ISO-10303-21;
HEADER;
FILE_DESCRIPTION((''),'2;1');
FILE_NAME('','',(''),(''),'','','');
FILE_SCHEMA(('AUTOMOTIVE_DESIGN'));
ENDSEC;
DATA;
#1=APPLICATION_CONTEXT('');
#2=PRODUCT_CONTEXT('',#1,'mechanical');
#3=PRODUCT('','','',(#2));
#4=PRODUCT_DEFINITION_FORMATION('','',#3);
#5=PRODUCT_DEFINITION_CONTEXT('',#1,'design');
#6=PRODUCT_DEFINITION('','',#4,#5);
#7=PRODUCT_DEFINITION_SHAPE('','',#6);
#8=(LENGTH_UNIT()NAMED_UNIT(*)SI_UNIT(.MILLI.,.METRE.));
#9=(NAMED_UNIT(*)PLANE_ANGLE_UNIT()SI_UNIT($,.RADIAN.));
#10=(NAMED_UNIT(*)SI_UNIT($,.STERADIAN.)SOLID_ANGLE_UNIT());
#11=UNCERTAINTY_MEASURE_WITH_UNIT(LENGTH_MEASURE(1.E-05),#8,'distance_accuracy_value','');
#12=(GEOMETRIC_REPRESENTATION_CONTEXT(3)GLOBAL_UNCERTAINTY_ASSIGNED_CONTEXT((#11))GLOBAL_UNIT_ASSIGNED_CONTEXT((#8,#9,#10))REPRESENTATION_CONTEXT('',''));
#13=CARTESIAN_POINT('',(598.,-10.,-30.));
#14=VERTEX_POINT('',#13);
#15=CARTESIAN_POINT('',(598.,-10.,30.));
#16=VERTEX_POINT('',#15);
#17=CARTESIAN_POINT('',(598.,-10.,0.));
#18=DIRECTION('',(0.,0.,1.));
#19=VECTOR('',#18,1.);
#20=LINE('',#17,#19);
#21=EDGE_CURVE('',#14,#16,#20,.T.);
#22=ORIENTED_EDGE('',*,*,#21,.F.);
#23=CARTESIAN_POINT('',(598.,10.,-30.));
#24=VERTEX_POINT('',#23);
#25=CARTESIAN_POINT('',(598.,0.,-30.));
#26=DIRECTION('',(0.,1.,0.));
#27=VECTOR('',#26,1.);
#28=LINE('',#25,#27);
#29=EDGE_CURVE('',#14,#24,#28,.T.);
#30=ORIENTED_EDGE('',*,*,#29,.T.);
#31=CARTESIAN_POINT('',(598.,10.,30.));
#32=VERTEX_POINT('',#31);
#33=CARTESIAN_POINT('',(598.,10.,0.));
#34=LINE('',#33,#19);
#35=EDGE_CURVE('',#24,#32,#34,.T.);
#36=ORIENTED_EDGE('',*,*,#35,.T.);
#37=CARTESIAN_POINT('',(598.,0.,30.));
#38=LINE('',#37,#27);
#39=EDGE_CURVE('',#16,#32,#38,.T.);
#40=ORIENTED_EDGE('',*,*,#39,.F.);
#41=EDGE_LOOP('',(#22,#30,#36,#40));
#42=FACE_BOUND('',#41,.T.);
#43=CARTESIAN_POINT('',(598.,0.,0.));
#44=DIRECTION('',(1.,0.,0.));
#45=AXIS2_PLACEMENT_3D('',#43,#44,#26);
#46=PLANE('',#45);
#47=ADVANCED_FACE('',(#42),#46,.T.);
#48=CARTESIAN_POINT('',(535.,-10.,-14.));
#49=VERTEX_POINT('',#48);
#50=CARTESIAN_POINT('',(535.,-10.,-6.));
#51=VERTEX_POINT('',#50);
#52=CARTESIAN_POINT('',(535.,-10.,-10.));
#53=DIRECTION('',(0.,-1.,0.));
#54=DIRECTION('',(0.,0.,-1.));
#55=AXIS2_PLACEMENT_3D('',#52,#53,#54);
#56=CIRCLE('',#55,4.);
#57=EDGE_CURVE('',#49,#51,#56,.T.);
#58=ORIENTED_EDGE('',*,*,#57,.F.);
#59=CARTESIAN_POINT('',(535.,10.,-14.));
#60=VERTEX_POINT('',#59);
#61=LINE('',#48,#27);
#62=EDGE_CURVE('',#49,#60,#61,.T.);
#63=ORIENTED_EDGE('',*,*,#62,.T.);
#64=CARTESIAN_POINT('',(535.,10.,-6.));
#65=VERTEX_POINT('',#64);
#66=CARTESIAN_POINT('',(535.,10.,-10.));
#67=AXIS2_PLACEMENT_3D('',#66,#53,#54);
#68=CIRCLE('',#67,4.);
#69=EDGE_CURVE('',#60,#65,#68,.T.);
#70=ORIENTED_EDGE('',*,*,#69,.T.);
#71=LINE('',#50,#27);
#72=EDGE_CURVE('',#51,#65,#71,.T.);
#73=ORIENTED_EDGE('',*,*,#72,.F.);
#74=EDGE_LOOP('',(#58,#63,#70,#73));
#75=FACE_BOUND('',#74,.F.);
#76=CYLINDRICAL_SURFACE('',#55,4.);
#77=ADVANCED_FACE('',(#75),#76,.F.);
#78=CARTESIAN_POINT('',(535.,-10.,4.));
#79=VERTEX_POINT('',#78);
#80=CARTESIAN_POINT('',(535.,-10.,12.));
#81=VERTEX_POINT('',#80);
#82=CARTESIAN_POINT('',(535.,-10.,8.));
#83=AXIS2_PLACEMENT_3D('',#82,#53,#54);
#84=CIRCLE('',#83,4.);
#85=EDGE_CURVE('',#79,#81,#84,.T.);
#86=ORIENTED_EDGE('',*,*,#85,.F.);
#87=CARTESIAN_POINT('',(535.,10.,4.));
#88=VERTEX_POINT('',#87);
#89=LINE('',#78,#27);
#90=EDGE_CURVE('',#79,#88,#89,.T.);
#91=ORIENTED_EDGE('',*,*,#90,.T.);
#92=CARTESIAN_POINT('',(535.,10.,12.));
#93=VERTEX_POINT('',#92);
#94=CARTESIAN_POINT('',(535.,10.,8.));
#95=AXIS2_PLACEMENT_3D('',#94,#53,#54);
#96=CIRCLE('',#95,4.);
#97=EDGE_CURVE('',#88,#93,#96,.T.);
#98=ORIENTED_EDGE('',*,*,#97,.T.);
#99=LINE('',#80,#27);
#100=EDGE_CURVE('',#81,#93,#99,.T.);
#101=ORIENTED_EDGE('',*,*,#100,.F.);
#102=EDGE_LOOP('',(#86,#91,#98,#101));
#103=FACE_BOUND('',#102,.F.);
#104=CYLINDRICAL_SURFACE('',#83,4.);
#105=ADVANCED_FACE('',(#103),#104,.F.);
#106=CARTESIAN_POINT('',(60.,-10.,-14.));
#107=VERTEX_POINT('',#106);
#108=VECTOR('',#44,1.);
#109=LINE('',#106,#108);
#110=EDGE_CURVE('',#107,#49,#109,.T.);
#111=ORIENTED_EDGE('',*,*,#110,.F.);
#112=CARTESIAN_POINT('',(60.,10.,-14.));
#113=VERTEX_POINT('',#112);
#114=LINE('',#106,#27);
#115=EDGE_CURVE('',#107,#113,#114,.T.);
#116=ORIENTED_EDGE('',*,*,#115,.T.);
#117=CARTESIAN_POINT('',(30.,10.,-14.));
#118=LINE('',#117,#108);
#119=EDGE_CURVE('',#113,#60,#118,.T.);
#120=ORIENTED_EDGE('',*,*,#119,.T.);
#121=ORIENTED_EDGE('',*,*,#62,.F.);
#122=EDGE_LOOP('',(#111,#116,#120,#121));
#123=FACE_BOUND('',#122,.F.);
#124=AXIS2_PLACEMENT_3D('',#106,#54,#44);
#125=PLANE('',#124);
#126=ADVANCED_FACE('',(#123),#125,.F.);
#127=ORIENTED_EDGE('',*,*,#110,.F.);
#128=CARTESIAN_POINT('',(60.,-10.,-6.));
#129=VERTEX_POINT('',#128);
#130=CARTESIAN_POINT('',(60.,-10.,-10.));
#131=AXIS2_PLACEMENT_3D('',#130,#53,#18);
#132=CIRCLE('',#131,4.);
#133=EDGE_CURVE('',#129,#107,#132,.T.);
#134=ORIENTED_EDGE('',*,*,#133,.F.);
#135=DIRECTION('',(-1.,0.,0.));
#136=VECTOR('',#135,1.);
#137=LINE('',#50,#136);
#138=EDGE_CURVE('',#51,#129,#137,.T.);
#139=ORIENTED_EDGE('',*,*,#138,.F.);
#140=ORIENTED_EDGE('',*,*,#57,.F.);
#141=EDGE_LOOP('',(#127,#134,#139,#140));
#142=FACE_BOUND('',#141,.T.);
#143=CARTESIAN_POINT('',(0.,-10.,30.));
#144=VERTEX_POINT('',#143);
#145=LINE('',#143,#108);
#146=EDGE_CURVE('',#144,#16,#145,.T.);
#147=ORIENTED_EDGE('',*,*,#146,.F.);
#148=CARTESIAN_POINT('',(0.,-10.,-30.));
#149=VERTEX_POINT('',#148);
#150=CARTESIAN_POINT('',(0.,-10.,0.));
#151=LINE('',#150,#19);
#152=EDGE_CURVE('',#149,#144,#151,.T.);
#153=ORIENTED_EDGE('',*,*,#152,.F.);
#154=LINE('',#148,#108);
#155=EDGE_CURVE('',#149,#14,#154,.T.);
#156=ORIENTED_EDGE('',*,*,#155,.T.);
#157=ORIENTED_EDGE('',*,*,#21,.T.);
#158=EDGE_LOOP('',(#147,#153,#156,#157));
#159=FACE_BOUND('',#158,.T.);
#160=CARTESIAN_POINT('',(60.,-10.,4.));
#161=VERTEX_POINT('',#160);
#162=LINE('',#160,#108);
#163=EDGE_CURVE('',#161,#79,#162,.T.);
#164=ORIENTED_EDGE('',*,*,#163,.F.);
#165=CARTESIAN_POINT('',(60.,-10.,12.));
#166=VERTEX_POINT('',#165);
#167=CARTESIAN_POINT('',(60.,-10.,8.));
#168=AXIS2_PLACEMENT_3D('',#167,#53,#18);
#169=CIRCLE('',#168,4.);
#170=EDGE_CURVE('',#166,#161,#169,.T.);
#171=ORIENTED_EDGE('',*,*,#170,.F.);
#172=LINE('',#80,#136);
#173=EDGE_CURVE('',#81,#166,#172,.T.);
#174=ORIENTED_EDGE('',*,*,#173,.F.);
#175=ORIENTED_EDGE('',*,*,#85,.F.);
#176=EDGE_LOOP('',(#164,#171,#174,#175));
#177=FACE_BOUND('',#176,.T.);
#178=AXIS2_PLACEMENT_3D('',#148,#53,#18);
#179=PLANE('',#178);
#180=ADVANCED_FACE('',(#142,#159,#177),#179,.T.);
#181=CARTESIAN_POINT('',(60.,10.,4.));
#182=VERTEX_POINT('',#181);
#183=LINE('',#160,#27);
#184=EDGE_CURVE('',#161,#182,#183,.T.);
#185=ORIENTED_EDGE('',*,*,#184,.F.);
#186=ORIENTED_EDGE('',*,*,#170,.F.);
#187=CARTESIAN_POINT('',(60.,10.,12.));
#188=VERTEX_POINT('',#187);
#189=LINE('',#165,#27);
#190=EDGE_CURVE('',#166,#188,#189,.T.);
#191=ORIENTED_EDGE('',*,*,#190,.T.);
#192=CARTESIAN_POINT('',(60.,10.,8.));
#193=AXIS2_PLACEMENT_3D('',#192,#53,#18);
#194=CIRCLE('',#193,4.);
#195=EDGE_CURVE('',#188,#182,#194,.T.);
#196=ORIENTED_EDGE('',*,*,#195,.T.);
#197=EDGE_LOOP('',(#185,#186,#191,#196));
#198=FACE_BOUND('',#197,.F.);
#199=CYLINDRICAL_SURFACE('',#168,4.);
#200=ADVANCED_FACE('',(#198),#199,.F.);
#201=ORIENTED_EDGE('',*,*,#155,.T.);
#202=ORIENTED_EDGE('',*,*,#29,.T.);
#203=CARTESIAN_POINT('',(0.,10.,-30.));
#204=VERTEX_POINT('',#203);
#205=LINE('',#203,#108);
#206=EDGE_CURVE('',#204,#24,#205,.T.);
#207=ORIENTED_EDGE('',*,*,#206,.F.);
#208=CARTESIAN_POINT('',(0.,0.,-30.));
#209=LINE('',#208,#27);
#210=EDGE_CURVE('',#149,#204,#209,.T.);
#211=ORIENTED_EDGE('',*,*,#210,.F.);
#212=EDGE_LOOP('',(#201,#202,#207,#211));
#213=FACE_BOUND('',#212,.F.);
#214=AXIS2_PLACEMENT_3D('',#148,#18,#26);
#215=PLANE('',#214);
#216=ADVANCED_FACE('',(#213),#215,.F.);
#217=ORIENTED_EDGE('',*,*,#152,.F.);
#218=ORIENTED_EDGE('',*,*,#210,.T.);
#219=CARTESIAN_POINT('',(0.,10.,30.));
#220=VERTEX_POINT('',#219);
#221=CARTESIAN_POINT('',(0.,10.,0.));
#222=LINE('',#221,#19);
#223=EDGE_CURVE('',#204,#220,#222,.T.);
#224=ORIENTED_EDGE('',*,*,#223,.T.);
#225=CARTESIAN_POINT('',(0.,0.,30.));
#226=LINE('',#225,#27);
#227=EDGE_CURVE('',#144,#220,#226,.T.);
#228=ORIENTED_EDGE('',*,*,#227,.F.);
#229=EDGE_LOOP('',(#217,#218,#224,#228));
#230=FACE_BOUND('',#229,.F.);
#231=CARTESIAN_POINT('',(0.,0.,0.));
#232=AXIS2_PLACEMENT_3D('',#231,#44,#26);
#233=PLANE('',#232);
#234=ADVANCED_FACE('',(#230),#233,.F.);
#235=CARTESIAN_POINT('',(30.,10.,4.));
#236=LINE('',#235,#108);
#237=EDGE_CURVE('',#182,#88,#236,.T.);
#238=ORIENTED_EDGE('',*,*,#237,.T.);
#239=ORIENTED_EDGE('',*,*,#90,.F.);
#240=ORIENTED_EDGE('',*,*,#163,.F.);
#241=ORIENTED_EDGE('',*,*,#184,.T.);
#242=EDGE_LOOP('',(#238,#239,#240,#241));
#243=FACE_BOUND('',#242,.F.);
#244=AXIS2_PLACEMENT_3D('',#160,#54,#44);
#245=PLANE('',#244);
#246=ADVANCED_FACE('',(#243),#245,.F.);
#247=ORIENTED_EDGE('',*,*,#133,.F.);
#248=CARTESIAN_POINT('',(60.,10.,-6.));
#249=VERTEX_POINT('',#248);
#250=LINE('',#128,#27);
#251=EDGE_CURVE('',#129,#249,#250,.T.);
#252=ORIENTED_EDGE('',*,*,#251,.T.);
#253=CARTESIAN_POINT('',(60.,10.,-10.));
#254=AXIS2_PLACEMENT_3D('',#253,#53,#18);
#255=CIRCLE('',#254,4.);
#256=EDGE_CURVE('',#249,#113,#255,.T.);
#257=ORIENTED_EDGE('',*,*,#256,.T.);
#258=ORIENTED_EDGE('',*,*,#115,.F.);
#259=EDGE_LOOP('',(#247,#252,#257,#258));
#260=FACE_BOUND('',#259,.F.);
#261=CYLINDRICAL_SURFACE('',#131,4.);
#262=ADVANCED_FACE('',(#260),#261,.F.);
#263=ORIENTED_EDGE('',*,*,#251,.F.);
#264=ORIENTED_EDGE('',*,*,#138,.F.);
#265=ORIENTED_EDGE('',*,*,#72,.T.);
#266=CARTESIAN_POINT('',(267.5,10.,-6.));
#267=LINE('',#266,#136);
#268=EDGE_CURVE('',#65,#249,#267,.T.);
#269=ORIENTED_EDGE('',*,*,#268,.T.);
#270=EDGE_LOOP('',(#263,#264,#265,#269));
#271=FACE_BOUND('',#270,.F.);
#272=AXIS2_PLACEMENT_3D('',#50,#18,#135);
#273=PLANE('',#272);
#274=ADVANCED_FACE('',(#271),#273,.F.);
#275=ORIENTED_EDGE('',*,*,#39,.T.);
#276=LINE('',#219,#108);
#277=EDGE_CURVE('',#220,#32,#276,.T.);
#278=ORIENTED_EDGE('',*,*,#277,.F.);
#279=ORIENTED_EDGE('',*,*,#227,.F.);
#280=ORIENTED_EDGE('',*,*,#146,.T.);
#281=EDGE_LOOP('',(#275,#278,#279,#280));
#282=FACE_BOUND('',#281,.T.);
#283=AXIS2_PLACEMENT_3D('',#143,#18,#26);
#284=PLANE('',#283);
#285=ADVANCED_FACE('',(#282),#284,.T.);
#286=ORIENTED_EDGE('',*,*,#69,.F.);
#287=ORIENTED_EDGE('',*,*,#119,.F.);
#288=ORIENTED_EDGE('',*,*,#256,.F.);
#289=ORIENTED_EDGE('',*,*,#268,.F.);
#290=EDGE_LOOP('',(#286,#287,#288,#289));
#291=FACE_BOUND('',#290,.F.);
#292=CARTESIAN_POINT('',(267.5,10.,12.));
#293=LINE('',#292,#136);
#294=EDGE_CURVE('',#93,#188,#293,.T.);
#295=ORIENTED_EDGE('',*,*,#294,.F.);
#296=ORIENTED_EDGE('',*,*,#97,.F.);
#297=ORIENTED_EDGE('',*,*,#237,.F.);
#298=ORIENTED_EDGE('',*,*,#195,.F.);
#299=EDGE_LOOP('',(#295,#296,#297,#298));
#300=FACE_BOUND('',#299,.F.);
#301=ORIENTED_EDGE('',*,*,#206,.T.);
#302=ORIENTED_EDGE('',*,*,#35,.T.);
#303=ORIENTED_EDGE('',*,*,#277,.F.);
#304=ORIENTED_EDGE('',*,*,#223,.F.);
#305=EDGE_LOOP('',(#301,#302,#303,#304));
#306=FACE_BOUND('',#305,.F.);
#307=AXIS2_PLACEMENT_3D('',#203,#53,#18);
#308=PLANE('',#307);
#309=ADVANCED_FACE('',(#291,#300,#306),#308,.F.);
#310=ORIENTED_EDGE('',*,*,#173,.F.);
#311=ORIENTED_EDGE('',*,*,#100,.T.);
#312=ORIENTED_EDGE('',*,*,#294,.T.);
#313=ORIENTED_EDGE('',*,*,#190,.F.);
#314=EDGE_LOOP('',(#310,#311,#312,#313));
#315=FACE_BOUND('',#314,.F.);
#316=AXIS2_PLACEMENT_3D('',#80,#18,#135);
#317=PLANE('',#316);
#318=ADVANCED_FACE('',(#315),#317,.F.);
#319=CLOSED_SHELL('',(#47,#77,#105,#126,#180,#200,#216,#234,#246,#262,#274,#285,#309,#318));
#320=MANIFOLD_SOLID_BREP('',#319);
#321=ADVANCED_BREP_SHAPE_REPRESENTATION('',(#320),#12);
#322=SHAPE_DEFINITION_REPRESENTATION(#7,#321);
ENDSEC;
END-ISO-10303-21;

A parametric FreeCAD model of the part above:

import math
import FreeCAD as App
import Part
import Sketcher

V = App.Vector


def add_polygon(sketch, points):
    """Adds a closed chain of lines whose ends are joined by coincident constraints."""
    first, n = sketch.GeometryCount, len(points)
    for a, b in zip(points, points[1:] + points[:1]):
        sketch.addGeometry(Part.LineSegment(App.Vector(*a, 0), App.Vector(*b, 0)), False)
    for i in range(n):
        sketch.addConstraint(Sketcher.Constraint("Coincident", first + i, 2, first + (i + 1) % n, 1))

doc = App.newDocument("Part")
params = doc.addObject("Spreadsheet::Sheet", "Params")
for row, (alias, value) in enumerate([
    ("sketch1_width", "20 mm"),
    ("sketch1_height", "60 mm"),
    ("pad1_length", "598 mm"),
    ("sketch2_radius", "4 mm"),
    ("sketch2_width", "475 mm"),
    ("pocket1_length", "25 mm"),
], start=1):
    params.set(f"A{row}", alias)
    params.set(f"B{row}", "=" + value)
    params.setAlias(f"B{row}", alias)

body = doc.addObject("PartDesign::Body", "Body")

# Sketch on YZ plane
sketch1 = body.newObject("Sketcher::SketchObject", "Sketch")
sketch1.AttachmentSupport = (doc.getObject("YZ_Plane"), [""])
sketch1.MapMode = "FlatFace"
add_polygon(sketch1, [(-10, 30), (-10, -30), (10, -30), (10, 30)])  # lines 0-3
sketch1.addConstraint(Sketcher.Constraint("Vertical", 0))
sketch1.addConstraint(Sketcher.Constraint("Horizontal", 1))
sketch1.addConstraint(Sketcher.Constraint("Vertical", 2))
sketch1.addConstraint(Sketcher.Constraint("Horizontal", 3))
sketch1.addConstraint(Sketcher.Constraint("Symmetric", 0, 2, 2, 2, -1, 1))
sketch1.addConstraint(Sketcher.Constraint("DistanceX", 1, 1, 1, 2, 20.0))
sketch1.addConstraint(Sketcher.Constraint("DistanceY", 0, 2, 0, 1, 60.0))
sketch1.setExpression("Constraints[9]", "Params.sketch1_width")
sketch1.setExpression("Constraints[10]", "Params.sketch1_height")
pad1 = body.newObject("PartDesign::Pad", "Pad")
pad1.Profile = sketch1
pad1.setExpression("Length", "Params.pad1_length")

# Sketch on XZ plane
sketch2 = body.newObject("Sketcher::SketchObject", "Sketch001")
sketch2.AttachmentSupport = (doc.getObject("XZ_Plane"), [""])
sketch2.MapMode = "FlatFace"
sketch2.AttachmentOffset = App.Placement(V(0, 0, 10), App.Rotation())
sketch2.addGeometry(Part.LineSegment(V(535, 12, 0), V(60, 12, 0)), False)
sketch2.addGeometry(Part.ArcOfCircle(Part.Circle(V(60, 8, 0), V(0, 0, 1), 4), math.radians(90), math.radians(270)), False)
sketch2.addGeometry(Part.LineSegment(V(60, 4, 0), V(535, 4, 0)), False)
sketch2.addGeometry(Part.ArcOfCircle(Part.Circle(V(535, 8, 0), V(0, 0, 1), 4), math.radians(-90), math.radians(90)), False)
sketch2.addGeometry(Part.LineSegment(V(535, -6, 0), V(60, -6, 0)), False)
sketch2.addGeometry(Part.ArcOfCircle(Part.Circle(V(60, -10, 0), V(0, 0, 1), 4), math.radians(90), math.radians(270)), False)
sketch2.addGeometry(Part.LineSegment(V(60, -14, 0), V(535, -14, 0)), False)
sketch2.addGeometry(Part.ArcOfCircle(Part.Circle(V(535, -10, 0), V(0, 0, 1), 4), math.radians(-90), math.radians(90)), False)
sketch2.addConstraint(Sketcher.Constraint("Tangent", 0, 2, 1, 1))
sketch2.addConstraint(Sketcher.Constraint("Tangent", 1, 2, 2, 1))
sketch2.addConstraint(Sketcher.Constraint("Tangent", 2, 2, 3, 1))
sketch2.addConstraint(Sketcher.Constraint("Tangent", 3, 2, 0, 1))
sketch2.addConstraint(Sketcher.Constraint("Tangent", 4, 2, 5, 1))
sketch2.addConstraint(Sketcher.Constraint("Tangent", 5, 2, 6, 1))
sketch2.addConstraint(Sketcher.Constraint("Tangent", 6, 2, 7, 1))
sketch2.addConstraint(Sketcher.Constraint("Tangent", 7, 2, 4, 1))
sketch2.addConstraint(Sketcher.Constraint("Horizontal", 0))
sketch2.addConstraint(Sketcher.Constraint("Horizontal", 2))
sketch2.addConstraint(Sketcher.Constraint("Horizontal", 4))
sketch2.addConstraint(Sketcher.Constraint("Horizontal", 6))
sketch2.addConstraint(Sketcher.Constraint("Equal", 3, 5))
sketch2.addConstraint(Sketcher.Constraint("Vertical", 1, 3, 5, 3))
sketch2.addConstraint(Sketcher.Constraint("Vertical", 3, 3, 7, 3))
sketch2.addConstraint(Sketcher.Constraint("Radius", 1, 4.0))
sketch2.addConstraint(Sketcher.Constraint("DistanceX", 0, 2, 0, 1, 475.0))
sketch2.addConstraint(Sketcher.Constraint("DistanceX", -1, 1, 1, 3, 60.0))
sketch2.addConstraint(Sketcher.Constraint("DistanceY", -1, 1, 1, 3, 8.0))
sketch2.addConstraint(Sketcher.Constraint("DistanceY", 5, 3, -1, 1, 10.0))
sketch2.setExpression("Constraints[15]", "Params.sketch2_radius")
sketch2.setExpression("Constraints[16]", "Params.sketch2_width")
pocket1 = body.newObject("PartDesign::Pocket", "Pocket")
pocket1.Profile = sketch2
pocket1.setExpression("Length", "Params.pocket1_length")

doc.recompute()
